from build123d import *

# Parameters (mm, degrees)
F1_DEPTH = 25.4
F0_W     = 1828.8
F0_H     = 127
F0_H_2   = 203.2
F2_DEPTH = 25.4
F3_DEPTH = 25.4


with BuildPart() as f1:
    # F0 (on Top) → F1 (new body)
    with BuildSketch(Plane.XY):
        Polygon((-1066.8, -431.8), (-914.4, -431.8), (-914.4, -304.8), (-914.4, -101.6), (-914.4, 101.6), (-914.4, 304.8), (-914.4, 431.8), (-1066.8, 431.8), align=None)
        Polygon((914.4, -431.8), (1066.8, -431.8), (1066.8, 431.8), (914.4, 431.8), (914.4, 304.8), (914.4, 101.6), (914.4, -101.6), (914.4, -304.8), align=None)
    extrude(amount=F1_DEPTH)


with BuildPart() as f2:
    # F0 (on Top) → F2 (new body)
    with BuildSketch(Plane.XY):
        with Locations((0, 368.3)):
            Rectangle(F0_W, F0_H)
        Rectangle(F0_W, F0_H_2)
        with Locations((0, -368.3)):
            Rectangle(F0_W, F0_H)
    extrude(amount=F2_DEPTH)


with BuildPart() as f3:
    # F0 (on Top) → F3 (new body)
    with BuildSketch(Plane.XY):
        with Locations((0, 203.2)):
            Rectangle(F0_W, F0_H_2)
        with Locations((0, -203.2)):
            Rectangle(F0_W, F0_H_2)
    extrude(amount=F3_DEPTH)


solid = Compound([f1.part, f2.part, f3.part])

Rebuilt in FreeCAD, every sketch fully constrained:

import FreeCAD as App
import Part
import Sketcher
Q = App.Units.Quantity


def add_polygon(sketch, points):
    """Adds a closed chain of lines whose ends are joined by coincident constraints."""
    first, n = sketch.GeometryCount, len(points)
    for a, b in zip(points, points[1:] + points[:1]):
        sketch.addGeometry(Part.LineSegment(App.Vector(*a, 0), App.Vector(*b, 0)), False)
    for i in range(n):
        sketch.addConstraint(Sketcher.Constraint("Coincident", first + i, 2, first + (i + 1) % n, 1))

doc = App.newDocument("Part")
body = doc.addObject("PartDesign::Body", "Body")
body.AllowCompound = True

sketch1 = body.newObject("Sketcher::SketchObject", "Sketch")
sketch1.AttachmentSupport = (doc.getObject("XY_Plane"), [""])
sketch1.MapMode = "FlatFace"
add_polygon(sketch1, [(-1067, -432), (-914, -432), (-914, 432), (-1067, 432)])
add_polygon(sketch1, [(914, -432), (1067, -432), (1067, 432), (914, 432)])
sketch1.addConstraint([
    Sketcher.Constraint("Horizontal", 0),
    Sketcher.Constraint("Vertical", 1),
    Sketcher.Constraint("Horizontal", 2),
    Sketcher.Constraint("Vertical", 3),
    Sketcher.Constraint("Horizontal", 4),
    Sketcher.Constraint("Vertical", 5),
    Sketcher.Constraint("Horizontal", 6),
    Sketcher.Constraint("Vertical", 7),
    Sketcher.Constraint("Symmetric", 2, 2, 4, 2, -1, 1),
    Sketcher.Constraint("Symmetric", 0, 2, 6, 2, -1, 1),
    Sketcher.Constraint("Horizontal", 3, 2, 4, 2),
    Sketcher.Constraint("DistanceX", 0, 1, 0, 2, Q("6 in")),
    Sketcher.Constraint("DistanceY", 1, 1, 1, 2, Q("34 in")),
    Sketcher.Constraint("DistanceX", 0, 2, -1, 1, Q("36 in")),
])
pad1 = body.newObject("PartDesign::Pad", "Pad")
pad1.Profile = sketch1
pad1.Length = Q("1 in")
body2 = doc.addObject("PartDesign::Body", "Body001")
body2.AllowCompound = True

sketch2 = body2.newObject("Sketcher::SketchObject", "Sketch001")
sketch2.AttachmentSupport = (doc.getObject("XY_Plane001"), [""])
sketch2.MapMode = "FlatFace"
add_polygon(sketch2, [(-914, 432), (-914, 305), (914, 305), (914, 432)])
add_polygon(sketch2, [(-914, 102), (-914, -102), (914, -102), (914, 102)])
add_polygon(sketch2, [(-914, -305), (-914, -432), (914, -432), (914, -305)])
sketch2.addConstraint([
    Sketcher.Constraint("Vertical", 0),
    Sketcher.Constraint("Horizontal", 1),
    Sketcher.Constraint("Vertical", 2),
    Sketcher.Constraint("Horizontal", 3),
    Sketcher.Constraint("Vertical", 4),
    Sketcher.Constraint("Horizontal", 5),
    Sketcher.Constraint("Vertical", 6),
    Sketcher.Constraint("Horizontal", 7),
    Sketcher.Constraint("Vertical", 8),
    Sketcher.Constraint("Horizontal", 9),
    Sketcher.Constraint("Vertical", 10),
    Sketcher.Constraint("Horizontal", 11),
    Sketcher.Constraint("Symmetric", 4, 2, 6, 2, -1, 1),
    Sketcher.Constraint("Symmetric", 2, 2, 8, 2, -1, 1),
    Sketcher.Constraint("Symmetric", 0, 2, 10, 2, -1, 1),
    Sketcher.Constraint("Vertical", 3, 2, 4, 2),
    Sketcher.Constraint("Vertical", 2, 2, 5, 2),
    Sketcher.Constraint("DistanceX", 1, 1, 1, 2, Q("72 in")),
    Sketcher.Constraint("DistanceY", 0, 2, 0, 1, Q("5 in")),
    Sketcher.Constraint("DistanceY", 4, 2, 4, 1, Q("8 in")),
    Sketcher.Constraint("DistanceY", -1, 1, 0, 2, Q("12 in")),
])
pad2 = body2.newObject("PartDesign::Pad", "Pad001")
pad2.Profile = sketch2
pad2.Length = Q("1 in")
body3 = doc.addObject("PartDesign::Body", "Body002")
body3.AllowCompound = True

sketch3 = body3.newObject("Sketcher::SketchObject", "Sketch002")
sketch3.AttachmentSupport = (doc.getObject("XY_Plane002"), [""])
sketch3.MapMode = "FlatFace"
add_polygon(sketch3, [(-914, 305), (-914, 102), (914, 102), (914, 305)])
add_polygon(sketch3, [(-914, -102), (-914, -305), (914, -305), (914, -102)])
sketch3.addConstraint([
    Sketcher.Constraint("Vertical", 0),
    Sketcher.Constraint("Horizontal", 1),
    Sketcher.Constraint("Vertical", 2),
    Sketcher.Constraint("Horizontal", 3),
    Sketcher.Constraint("Vertical", 4),
    Sketcher.Constraint("Horizontal", 5),
    Sketcher.Constraint("Vertical", 6),
    Sketcher.Constraint("Horizontal", 7),
    Sketcher.Constraint("Symmetric", 2, 2, 4, 2, -1, 1),
    Sketcher.Constraint("Symmetric", 0, 2, 6, 2, -1, 1),
    Sketcher.Constraint("Vertical", 3, 2, 4, 2),
    Sketcher.Constraint("DistanceX", 1, 1, 1, 2, Q("72 in")),
    Sketcher.Constraint("DistanceY", 0, 2, 0, 1, Q("8 in")),
    Sketcher.Constraint("DistanceY", -1, 1, 0, 2, Q("4 in")),
])
pad3 = body3.newObject("PartDesign::Pad", "Pad002")
pad3.Profile = sketch3
pad3.Length = Q("1 in")

doc.recompute()
